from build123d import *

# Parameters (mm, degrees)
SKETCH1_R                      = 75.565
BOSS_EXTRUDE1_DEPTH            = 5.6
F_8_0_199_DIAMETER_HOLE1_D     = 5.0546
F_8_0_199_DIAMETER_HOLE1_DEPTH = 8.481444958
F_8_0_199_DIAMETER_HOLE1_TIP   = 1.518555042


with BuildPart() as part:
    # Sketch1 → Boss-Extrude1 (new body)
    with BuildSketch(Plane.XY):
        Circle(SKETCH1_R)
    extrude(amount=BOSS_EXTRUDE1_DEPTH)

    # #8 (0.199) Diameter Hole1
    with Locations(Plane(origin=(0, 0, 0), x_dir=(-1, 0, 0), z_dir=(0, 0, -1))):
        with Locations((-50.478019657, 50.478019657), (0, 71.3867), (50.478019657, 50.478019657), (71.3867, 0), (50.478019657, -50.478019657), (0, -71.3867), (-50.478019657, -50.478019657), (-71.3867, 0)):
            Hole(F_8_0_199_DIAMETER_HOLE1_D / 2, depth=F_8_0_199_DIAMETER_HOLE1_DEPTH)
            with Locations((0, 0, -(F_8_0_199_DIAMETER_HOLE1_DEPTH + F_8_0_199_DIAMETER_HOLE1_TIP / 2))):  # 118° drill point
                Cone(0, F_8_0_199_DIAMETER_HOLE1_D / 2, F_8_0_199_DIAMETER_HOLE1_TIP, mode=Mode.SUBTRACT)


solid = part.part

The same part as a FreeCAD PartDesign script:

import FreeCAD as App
import Part
import Sketcher
Q = App.Units.Quantity

doc = App.newDocument("Part")
body = doc.addObject("PartDesign::Body", "Body")

sketch1 = body.newObject("Sketcher::SketchObject", "Sketch")
sketch1.AttachmentSupport = (doc.getObject("XY_Plane"), [""])
sketch1.MapMode = "FlatFace"
sketch1.addGeometry(Part.Circle(App.Vector(0, 0, 0), App.Vector(0, 0, 1), 75.565), False)
sketch1.addConstraint([
    Sketcher.Constraint("Coincident", 0, 3, -1, 1),
    Sketcher.Constraint("Diameter", 0, Q("5.95 in")),
])
pad1 = body.newObject("PartDesign::Pad", "Pad")
pad1.Profile = sketch1
pad1.Length = 5.6

sketch2 = body.newObject("Sketcher::SketchObject", "Sketch001")
sketch2.AttachmentSupport = (doc.getObject("XY_Plane"), [""])
sketch2.MapMode = "FlatFace"
sketch2.addGeometry([
    Part.Circle(App.Vector(50.47802, 50.47802, 0), App.Vector(0, 0, 1), 2.5273),
    Part.Circle(App.Vector(0, 71.3867, 0), App.Vector(0, 0, 1), 2.5273),
    Part.Circle(App.Vector(-50.47802, 50.47802, 0), App.Vector(0, 0, 1), 2.5273),
    Part.Circle(App.Vector(-71.3867, 0, 0), App.Vector(0, 0, 1), 2.5273),
    Part.Circle(App.Vector(-50.47802, -50.47802, 0), App.Vector(0, 0, 1), 2.5273),
    Part.Circle(App.Vector(0, -71.3867, 0), App.Vector(0, 0, 1), 2.5273),
    Part.Circle(App.Vector(50.47802, -50.47802, 0), App.Vector(0, 0, 1), 2.5273),
    Part.Circle(App.Vector(71.3867, 0, 0), App.Vector(0, 0, 1), 2.5273),
], False)
sketch2.addConstraint([
    Sketcher.Constraint("Equal", 0, 1),
    Sketcher.Constraint("Equal", 1, 2),
    Sketcher.Constraint("Equal", 2, 3),
    Sketcher.Constraint("Equal", 3, 4),
    Sketcher.Constraint("Equal", 4, 5),
    Sketcher.Constraint("Equal", 5, 6),
    Sketcher.Constraint("Equal", 6, 7),
    Sketcher.Constraint("Symmetric", 0, 3, 4, 3, -1, 1),
    Sketcher.Constraint("Symmetric", 1, 3, 5, 3, -1, 1),
    Sketcher.Constraint("Symmetric", 2, 3, 6, 3, -1, 1),
    Sketcher.Constraint("Symmetric", 3, 3, 7, 3, -1, 1),
    Sketcher.Constraint("Symmetric", 0, 3, 2, 3, -2),
    Sketcher.Constraint("PointOnObject", 1, 3, -2),
    Sketcher.Constraint("PointOnObject", 3, 3, -1),
    Sketcher.Constraint("Diameter", 0, Q("0.199 in")),
    Sketcher.Constraint("DistanceY", 5, 3, 1, 3, Q("5.621 in")),
    Sketcher.Constraint("DistanceX", 3, 3, -1, 1, Q("2.8105 in")),
    Sketcher.Constraint("DistanceX", -1, 1, 0, 3, 50.47802),
    Sketcher.Constraint("DistanceY", -1, 1, 0, 3, 50.47802),
])
doc.recompute()
hole = body.newObject("PartDesign::Hole", "Hole")
hole.Profile = sketch2
hole.ThreadType = "None"
hole.Diameter = Q("0.199 in")
hole.DepthType = "Dimension"
hole.Depth = 8.481445
hole.DrillPoint = "Angled"
hole.DrillPointAngle = 118
hole.Reversed = True

doc.recompute()
